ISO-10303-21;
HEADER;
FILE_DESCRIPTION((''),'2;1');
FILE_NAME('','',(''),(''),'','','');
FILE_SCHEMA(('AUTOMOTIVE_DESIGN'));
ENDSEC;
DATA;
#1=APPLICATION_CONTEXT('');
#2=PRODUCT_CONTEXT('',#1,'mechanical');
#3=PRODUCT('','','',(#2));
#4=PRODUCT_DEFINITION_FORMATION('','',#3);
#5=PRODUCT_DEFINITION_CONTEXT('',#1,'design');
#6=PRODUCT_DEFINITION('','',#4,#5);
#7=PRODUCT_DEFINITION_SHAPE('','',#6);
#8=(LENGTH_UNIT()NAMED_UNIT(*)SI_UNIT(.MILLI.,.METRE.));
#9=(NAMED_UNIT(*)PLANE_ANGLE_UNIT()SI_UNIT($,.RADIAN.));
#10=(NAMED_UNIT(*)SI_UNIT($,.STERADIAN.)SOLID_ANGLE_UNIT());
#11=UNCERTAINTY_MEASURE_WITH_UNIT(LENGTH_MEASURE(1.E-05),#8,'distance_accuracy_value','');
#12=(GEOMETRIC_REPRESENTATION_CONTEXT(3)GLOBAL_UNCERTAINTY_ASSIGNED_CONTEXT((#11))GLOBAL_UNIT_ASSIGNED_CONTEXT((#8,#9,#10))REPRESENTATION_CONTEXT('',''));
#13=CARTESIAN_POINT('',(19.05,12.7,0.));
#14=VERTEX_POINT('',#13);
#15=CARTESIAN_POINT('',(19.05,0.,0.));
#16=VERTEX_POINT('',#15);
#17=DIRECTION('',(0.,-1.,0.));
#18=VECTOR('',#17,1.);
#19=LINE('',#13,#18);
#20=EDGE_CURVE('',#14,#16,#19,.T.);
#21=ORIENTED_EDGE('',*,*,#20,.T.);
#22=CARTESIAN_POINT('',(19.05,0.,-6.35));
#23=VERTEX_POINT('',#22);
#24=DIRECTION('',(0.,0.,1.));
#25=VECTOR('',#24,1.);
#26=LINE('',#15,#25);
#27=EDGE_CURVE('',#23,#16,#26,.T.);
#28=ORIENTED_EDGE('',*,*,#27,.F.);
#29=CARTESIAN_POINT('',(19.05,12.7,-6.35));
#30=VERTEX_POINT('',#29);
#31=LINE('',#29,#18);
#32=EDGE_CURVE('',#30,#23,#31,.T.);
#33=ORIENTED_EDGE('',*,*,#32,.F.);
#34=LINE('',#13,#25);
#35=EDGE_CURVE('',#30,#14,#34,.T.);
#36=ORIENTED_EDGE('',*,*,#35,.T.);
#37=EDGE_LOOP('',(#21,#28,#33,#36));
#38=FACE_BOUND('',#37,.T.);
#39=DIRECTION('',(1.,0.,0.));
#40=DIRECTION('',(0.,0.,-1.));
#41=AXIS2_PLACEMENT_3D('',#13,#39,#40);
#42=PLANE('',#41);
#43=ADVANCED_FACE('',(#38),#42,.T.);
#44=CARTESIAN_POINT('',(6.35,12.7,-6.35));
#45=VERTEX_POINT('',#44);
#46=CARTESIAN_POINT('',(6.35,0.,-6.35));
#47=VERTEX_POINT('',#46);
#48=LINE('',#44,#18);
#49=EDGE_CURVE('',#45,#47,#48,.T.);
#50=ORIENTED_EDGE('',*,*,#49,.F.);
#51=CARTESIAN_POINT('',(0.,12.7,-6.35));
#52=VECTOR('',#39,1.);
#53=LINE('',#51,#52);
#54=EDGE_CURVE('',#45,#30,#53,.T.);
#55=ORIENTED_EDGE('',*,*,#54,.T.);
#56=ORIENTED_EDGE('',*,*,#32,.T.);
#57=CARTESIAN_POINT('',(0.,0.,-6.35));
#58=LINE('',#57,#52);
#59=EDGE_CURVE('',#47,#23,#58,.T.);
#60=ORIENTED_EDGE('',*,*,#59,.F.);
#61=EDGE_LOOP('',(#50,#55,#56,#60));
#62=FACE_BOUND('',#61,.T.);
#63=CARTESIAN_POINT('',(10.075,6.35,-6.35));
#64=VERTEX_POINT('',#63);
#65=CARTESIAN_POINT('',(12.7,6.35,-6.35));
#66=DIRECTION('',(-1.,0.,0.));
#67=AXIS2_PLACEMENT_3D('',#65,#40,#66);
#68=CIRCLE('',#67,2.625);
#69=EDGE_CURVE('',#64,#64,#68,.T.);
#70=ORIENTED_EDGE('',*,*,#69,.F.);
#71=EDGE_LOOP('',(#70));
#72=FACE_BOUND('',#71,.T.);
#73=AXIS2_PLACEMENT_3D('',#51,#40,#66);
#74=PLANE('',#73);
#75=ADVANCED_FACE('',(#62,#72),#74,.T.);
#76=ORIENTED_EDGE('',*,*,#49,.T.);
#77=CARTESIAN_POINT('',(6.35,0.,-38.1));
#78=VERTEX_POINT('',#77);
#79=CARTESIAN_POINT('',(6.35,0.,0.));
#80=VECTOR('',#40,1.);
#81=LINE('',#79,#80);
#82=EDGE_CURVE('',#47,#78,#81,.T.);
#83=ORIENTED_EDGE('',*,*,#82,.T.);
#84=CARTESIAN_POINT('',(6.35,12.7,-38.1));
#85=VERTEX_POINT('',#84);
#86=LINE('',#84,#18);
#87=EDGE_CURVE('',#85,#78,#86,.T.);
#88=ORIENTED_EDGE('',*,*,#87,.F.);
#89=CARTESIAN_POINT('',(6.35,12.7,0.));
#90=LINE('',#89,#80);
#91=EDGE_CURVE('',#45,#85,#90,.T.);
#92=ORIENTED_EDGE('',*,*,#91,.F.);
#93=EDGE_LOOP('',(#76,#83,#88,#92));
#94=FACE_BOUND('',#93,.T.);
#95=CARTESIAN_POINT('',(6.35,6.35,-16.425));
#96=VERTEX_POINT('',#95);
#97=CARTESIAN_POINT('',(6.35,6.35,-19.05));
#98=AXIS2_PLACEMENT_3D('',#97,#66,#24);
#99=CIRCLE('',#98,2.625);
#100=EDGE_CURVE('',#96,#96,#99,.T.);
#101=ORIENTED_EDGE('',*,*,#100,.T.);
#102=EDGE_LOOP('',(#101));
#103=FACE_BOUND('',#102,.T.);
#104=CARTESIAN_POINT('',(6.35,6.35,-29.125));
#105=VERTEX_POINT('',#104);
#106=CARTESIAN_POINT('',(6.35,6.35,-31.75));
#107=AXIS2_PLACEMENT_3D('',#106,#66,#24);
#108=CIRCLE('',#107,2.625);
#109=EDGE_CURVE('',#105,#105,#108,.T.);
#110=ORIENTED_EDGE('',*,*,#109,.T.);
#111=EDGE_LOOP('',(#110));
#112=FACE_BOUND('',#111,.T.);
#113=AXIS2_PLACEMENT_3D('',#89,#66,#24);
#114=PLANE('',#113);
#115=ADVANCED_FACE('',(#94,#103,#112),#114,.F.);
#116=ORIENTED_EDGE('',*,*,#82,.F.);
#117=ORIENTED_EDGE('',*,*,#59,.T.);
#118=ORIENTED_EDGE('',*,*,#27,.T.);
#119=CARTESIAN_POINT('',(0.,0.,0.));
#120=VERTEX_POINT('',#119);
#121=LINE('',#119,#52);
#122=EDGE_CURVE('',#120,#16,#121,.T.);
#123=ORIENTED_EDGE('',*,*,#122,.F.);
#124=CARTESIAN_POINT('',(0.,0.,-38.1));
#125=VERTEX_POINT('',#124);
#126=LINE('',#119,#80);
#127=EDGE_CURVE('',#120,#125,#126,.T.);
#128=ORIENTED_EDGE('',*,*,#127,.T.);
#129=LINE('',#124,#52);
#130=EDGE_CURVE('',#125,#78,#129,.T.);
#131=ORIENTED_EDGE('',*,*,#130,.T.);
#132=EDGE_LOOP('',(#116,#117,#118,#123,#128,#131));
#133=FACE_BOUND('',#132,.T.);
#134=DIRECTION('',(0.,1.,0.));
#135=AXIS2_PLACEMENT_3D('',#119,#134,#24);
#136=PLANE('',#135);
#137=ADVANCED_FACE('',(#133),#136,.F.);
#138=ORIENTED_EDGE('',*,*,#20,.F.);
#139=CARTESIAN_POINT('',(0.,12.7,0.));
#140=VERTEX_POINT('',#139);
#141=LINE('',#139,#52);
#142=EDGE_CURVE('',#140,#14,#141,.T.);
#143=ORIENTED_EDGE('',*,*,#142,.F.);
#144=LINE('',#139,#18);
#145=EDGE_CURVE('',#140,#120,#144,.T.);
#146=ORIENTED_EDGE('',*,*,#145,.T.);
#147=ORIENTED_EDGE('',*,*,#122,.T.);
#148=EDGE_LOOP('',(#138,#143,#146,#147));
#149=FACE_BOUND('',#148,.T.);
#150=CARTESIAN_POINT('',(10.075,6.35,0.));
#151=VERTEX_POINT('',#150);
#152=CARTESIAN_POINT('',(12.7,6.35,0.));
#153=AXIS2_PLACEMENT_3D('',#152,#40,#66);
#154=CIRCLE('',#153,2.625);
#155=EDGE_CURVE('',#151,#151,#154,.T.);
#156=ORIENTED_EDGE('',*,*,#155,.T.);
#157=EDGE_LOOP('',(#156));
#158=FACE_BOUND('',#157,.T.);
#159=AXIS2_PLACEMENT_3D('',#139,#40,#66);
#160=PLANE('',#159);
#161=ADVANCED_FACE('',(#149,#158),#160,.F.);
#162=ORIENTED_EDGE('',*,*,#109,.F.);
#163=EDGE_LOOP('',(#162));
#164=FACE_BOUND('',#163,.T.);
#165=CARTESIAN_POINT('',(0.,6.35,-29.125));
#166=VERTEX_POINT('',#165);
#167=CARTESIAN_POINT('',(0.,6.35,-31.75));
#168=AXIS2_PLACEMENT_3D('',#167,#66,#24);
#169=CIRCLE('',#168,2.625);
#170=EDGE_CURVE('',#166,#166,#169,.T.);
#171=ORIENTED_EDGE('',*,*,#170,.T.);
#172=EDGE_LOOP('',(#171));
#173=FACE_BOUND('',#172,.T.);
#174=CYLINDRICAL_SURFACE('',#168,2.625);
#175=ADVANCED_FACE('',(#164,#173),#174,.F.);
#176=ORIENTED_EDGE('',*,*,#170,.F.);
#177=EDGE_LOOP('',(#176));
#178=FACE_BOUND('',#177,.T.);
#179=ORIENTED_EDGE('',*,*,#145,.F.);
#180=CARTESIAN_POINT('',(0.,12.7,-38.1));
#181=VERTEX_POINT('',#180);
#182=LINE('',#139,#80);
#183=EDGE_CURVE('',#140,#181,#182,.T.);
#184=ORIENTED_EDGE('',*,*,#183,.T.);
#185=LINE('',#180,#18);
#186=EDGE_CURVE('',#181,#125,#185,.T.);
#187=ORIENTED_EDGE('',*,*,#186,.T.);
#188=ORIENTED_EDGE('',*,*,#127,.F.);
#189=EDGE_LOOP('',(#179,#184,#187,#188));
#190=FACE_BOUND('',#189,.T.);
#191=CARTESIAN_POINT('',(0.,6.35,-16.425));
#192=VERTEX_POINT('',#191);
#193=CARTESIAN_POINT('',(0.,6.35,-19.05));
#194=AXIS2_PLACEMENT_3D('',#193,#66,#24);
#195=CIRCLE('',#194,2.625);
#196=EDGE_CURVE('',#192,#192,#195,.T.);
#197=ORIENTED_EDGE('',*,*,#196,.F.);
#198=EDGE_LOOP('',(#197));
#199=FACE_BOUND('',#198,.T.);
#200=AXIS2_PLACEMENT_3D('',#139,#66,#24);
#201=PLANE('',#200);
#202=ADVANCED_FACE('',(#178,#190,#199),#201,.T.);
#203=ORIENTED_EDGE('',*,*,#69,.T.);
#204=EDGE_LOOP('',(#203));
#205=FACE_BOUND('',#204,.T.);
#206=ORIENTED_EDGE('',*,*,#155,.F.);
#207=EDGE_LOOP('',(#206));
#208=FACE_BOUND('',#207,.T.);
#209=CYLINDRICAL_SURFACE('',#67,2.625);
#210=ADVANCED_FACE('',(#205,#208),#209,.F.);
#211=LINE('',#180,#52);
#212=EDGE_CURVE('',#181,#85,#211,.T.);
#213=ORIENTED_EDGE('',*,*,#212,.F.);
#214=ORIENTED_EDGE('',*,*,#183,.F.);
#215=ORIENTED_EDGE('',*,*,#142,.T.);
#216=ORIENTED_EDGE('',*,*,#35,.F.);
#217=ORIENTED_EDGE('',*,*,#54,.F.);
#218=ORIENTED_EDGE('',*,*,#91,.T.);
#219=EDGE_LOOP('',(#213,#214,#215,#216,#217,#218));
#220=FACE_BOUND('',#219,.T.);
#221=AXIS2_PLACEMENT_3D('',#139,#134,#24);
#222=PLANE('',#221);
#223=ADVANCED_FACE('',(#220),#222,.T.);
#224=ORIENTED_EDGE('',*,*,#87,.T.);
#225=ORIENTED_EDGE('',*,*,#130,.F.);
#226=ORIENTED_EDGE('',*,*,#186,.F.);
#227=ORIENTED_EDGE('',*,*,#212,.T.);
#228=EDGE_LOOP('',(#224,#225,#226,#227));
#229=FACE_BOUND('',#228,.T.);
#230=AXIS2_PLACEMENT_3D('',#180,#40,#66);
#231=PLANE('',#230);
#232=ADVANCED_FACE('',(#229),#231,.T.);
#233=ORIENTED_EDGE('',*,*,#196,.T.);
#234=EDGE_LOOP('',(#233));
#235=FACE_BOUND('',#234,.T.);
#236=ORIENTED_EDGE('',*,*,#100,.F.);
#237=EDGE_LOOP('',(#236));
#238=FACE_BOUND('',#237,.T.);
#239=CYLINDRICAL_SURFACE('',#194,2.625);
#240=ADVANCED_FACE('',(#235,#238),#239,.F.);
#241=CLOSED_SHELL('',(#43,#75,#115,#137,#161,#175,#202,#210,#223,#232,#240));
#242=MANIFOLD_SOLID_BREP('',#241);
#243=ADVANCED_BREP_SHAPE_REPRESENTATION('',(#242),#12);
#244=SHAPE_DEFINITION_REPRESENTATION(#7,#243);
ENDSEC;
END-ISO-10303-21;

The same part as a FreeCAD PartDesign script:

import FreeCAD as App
import Part
import Sketcher
from FreeCAD import Vector
Q = App.Units.Quantity


def add_polygon(sketch, points):
    """Adds a closed chain of lines whose ends are joined by coincident constraints."""
    first, n = sketch.GeometryCount, len(points)
    for a, b in zip(points, points[1:] + points[:1]):
        sketch.addGeometry(Part.LineSegment(App.Vector(*a, 0), App.Vector(*b, 0)), False)
    for i in range(n):
        sketch.addConstraint(Sketcher.Constraint("Coincident", first + i, 2, first + (i + 1) % n, 1))

doc = App.newDocument("Part")
params = doc.addObject("Spreadsheet::Sheet", "Params")
for row, (alias, value) in enumerate([
    ("sketch1_width", "0.5 in"),
    ("sketch1_height", "1.5 in"),
    ("sketch1_width2", "0.75 in"),
    ("pad1_length", "0.5 in"),
    ("hole_diameter", "5.25 mm"),
    ("hole_depth", "0.39 in"),
    ("hole2_diameter", "5.25 mm"),
    ("hole2_depth", "0.39 in"),
], start=1):
    params.set(f"A{row}", alias)
    params.set(f"B{row}", "=" + value)
    params.setAlias(f"B{row}", alias)

body = doc.addObject("PartDesign::Body", "Body")

# Sketch on XZ plane
sketch1 = body.newObject("Sketcher::SketchObject", "Sketch")
sketch1.AttachmentSupport = (doc.getObject("XZ_Plane"), [""])
sketch1.MapMode = "FlatFace"
add_polygon(sketch1, [(0, -38), (0, 0), (19, 0), (19, -6), (6, -6), (6, -38)])  # lines 0-5
sketch1.addConstraint([
    Sketcher.Constraint("Vertical", 0),
    Sketcher.Constraint("Horizontal", 1),
    Sketcher.Constraint("Vertical", 2),
    Sketcher.Constraint("Horizontal", 3),
    Sketcher.Constraint("Vertical", 4),
    Sketcher.Constraint("Horizontal", 5),
    Sketcher.Constraint("Coincident", 0, 2, -1, 1),
    Sketcher.Constraint("Equal", 5, 2),
    Sketcher.Constraint("DistanceX", 3, 2, 3, 1, Q("0.5 in")),
    Sketcher.Constraint("DistanceY", 0, 1, 0, 2, Q("1.5 in")),
    Sketcher.Constraint("DistanceX", 1, 1, 1, 2, Q("0.75 in")),
])
sketch1.setExpression("Constraints[14]", "Params.sketch1_width")
sketch1.setExpression("Constraints[15]", "Params.sketch1_height")
sketch1.setExpression("Constraints[16]", "Params.sketch1_width2")
pad1 = body.newObject("PartDesign::Pad", "Pad")
pad1.Profile = sketch1
pad1.setExpression("Length", "Params.pad1_length")
pad1.Reversed = True

# Sketch on YZ plane
sketch2 = body.newObject("Sketcher::SketchObject", "Sketch001")
sketch2.AttachmentSupport = (doc.getObject("YZ_Plane"), [""])
sketch2.MapMode = "FlatFace"
sketch2.addGeometry([
    Part.Circle(Vector(6.3, -31.8, 0), Vector(0, 0, 1), 2.6),
    Part.Circle(Vector(6.3, -19.1, 0), Vector(0, 0, 1), 2.6),
], False)
sketch2.addConstraint([
    Sketcher.Constraint("Equal", 0, 1),
    Sketcher.Constraint("Vertical", 0, 3, 1, 3),
    Sketcher.Constraint("DistanceY", 0, 3, 1, 3, Q("0.5 in")),
    Sketcher.Constraint("Diameter", 0, 5.25),
    Sketcher.Constraint("DistanceX", -1, 1, 0, 3, Q("0.25 in")),
    Sketcher.Constraint("DistanceY", 0, 3, -1, 1, Q("1.25 in")),
])
doc.recompute()
hole = body.newObject("PartDesign::Hole", "Hole")
hole.Profile = sketch2
hole.ThreadType = "None"
hole.setExpression("Diameter", "Params.hole_diameter")
hole.DepthType = "Dimension"
hole.setExpression("Depth", "Params.hole_depth")
hole.DrillPoint = "Angled"
hole.DrillPointAngle = 118
hole.Reversed = True

# Sketch on XY plane
sketch3 = body.newObject("Sketcher::SketchObject", "Sketch002")
sketch3.AttachmentSupport = (doc.getObject("XY_Plane"), [""])
sketch3.MapMode = "FlatFace"
sketch3.AttachmentOffset = App.Placement(Vector(0, 0, -0.25 * 25.4), App.Rotation())
sketch3.addGeometry(Part.Circle(Vector(12.7, 6.3, 0), Vector(0, 0, 1), 2.6), False)
sketch3.addConstraint([
    Sketcher.Constraint("DistanceX", -1, 1, 0, 3, Q("0.5 in")),
    Sketcher.Constraint("Diameter", 0, 5.25),
    Sketcher.Constraint("DistanceY", -1, 1, 0, 3, Q("0.25 in")),
])
doc.recompute()
hole2 = body.newObject("PartDesign::Hole", "Hole001")
hole2.Profile = sketch3
hole2.ThreadType = "None"
hole2.setExpression("Diameter", "Params.hole2_diameter")
hole2.DepthType = "Dimension"
hole2.setExpression("Depth", "Params.hole2_depth")
hole2.DrillPoint = "Angled"
hole2.DrillPointAngle = 118
hole2.Reversed = True

doc.recompute()
